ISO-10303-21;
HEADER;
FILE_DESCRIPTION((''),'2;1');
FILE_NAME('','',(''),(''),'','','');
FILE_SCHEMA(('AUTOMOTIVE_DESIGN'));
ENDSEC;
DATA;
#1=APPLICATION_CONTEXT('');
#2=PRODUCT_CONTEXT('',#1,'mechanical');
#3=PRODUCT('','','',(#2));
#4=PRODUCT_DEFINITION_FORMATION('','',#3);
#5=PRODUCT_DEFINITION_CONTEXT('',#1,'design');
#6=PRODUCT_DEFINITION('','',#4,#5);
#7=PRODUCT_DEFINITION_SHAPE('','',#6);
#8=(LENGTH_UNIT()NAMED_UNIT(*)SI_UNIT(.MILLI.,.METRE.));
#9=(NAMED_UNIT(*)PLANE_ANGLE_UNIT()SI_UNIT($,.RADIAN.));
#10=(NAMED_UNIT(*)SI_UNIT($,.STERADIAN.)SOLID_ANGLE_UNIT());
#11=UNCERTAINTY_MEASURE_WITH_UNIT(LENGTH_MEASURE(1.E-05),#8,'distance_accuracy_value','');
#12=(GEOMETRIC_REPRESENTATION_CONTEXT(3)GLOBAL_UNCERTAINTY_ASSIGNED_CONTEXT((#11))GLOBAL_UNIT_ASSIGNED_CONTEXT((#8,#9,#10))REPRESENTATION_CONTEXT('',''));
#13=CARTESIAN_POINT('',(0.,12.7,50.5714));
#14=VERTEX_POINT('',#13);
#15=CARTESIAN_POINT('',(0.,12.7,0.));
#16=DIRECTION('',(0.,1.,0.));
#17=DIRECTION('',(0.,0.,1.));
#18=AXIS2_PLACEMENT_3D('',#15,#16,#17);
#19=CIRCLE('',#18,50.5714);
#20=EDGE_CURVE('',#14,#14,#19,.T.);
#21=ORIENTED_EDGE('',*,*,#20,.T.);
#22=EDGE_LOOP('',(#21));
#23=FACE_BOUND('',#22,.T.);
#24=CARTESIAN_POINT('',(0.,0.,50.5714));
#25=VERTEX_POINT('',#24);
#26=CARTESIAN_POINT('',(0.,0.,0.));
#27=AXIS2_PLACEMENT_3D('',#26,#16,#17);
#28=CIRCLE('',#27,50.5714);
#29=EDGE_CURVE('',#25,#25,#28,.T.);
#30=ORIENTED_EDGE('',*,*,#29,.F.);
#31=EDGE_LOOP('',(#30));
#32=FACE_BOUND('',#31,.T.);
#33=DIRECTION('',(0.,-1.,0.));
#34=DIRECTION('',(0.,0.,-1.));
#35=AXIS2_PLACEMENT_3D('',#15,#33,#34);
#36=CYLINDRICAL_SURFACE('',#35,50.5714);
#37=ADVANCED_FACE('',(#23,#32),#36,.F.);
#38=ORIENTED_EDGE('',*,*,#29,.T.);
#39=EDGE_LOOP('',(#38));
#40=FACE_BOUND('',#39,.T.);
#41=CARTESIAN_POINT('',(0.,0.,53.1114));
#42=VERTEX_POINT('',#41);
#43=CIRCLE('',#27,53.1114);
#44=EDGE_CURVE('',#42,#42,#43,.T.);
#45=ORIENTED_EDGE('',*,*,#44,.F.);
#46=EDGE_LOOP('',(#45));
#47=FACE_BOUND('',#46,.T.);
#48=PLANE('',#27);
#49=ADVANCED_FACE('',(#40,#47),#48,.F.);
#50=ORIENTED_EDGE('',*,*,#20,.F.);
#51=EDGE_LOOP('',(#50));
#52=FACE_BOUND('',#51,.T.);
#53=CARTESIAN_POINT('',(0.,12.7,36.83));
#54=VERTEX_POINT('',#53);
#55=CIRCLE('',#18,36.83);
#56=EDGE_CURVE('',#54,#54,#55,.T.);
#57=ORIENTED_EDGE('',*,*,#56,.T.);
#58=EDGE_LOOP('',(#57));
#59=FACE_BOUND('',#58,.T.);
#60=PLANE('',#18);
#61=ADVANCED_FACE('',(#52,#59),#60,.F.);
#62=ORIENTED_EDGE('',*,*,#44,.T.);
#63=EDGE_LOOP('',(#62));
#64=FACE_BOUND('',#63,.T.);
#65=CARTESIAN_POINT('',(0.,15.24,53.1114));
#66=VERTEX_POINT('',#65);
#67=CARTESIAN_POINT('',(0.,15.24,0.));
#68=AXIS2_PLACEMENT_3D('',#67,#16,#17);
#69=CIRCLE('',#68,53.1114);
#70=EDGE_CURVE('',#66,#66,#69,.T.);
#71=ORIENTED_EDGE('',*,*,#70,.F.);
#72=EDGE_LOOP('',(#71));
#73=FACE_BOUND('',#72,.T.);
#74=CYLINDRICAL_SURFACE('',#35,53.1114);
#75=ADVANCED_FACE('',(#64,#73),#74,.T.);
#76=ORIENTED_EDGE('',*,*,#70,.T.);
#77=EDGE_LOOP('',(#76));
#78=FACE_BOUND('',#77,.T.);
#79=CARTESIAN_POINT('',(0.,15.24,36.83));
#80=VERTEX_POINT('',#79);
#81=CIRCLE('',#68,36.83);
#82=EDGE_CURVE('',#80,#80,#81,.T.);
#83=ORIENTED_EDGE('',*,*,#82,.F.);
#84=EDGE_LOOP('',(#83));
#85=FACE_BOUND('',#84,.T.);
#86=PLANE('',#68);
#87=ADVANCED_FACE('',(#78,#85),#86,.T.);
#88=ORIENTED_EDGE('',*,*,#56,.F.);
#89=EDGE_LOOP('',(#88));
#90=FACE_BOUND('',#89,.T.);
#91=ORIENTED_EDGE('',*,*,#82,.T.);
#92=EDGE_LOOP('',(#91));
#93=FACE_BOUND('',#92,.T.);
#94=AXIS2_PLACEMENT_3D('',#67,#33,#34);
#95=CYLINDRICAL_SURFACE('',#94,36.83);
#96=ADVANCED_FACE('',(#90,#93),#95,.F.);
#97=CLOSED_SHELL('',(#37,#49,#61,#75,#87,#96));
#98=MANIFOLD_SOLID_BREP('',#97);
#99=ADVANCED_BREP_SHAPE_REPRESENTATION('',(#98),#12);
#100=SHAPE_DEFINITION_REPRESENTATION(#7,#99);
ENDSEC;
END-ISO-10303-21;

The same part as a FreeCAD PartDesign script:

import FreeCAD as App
import Part
import Sketcher
Q = App.Units.Quantity

doc = App.newDocument("Part")
body = doc.addObject("PartDesign::Body", "Body")

# Sketch on XZ plane
sketch1 = doc.addObject("Sketcher::SketchObject", "Sketch")
body.addObject(sketch1)
sketch1.AttachmentSupport = (doc.XZ_Plane, [""])
sketch1.MapMode = "FlatFace"
sketch1.addGeometry([
    Part.Circle(App.Vector(0, 0, 0), App.Vector(0, 0, 1), 53),
    Part.Circle(App.Vector(0, 0, 0), App.Vector(0, 0, 1), 51),
], False)
sketch1.addConstraint([
    Sketcher.Constraint("Coincident", 0, 3, -1, 1),
    Sketcher.Constraint("Coincident", 1, 3, -1, 1),
    Sketcher.Constraint("Diameter", 0, Q("4.182 in")),
    Sketcher.Constraint("Diameter", 1, Q("3.982 in")),
])
pad1 = doc.addObject("PartDesign::Pad", "Pad")
body.addObject(pad1)
pad1.Profile = sketch1
pad1.Length = Q("0.5 in")
pad1.Reversed = True

# Sketch on XZ plane
sketch2 = doc.addObject("Sketcher::SketchObject", "Sketch001")
body.addObject(sketch2)
sketch2.AttachmentSupport = (doc.XZ_Plane, [""])
sketch2.MapMode = "FlatFace"
sketch2.AttachmentOffset = App.Placement(App.Vector(0, 0, -0.5 * 25.4), App.Rotation())
sketch2.addGeometry([
    Part.Circle(App.Vector(0, 0, 0), App.Vector(0, 0, 1), 53),
    Part.Circle(App.Vector(0, 0, 0), App.Vector(0, 0, 1), 37),
], False)
sketch2.addConstraint([
    Sketcher.Constraint("Coincident", 0, 3, -1, 1),
    Sketcher.Constraint("Coincident", 1, 3, -1, 1),
    Sketcher.Constraint("Diameter", 1, Q("2.9 in")),
    Sketcher.Constraint("Diameter", 0, Q("4.182 in")),
])
pad2 = doc.addObject("PartDesign::Pad", "Pad001")
body.addObject(pad2)
pad2.Profile = sketch2
pad2.Length = Q("0.1 in")
pad2.Reversed = True

doc.recompute()
